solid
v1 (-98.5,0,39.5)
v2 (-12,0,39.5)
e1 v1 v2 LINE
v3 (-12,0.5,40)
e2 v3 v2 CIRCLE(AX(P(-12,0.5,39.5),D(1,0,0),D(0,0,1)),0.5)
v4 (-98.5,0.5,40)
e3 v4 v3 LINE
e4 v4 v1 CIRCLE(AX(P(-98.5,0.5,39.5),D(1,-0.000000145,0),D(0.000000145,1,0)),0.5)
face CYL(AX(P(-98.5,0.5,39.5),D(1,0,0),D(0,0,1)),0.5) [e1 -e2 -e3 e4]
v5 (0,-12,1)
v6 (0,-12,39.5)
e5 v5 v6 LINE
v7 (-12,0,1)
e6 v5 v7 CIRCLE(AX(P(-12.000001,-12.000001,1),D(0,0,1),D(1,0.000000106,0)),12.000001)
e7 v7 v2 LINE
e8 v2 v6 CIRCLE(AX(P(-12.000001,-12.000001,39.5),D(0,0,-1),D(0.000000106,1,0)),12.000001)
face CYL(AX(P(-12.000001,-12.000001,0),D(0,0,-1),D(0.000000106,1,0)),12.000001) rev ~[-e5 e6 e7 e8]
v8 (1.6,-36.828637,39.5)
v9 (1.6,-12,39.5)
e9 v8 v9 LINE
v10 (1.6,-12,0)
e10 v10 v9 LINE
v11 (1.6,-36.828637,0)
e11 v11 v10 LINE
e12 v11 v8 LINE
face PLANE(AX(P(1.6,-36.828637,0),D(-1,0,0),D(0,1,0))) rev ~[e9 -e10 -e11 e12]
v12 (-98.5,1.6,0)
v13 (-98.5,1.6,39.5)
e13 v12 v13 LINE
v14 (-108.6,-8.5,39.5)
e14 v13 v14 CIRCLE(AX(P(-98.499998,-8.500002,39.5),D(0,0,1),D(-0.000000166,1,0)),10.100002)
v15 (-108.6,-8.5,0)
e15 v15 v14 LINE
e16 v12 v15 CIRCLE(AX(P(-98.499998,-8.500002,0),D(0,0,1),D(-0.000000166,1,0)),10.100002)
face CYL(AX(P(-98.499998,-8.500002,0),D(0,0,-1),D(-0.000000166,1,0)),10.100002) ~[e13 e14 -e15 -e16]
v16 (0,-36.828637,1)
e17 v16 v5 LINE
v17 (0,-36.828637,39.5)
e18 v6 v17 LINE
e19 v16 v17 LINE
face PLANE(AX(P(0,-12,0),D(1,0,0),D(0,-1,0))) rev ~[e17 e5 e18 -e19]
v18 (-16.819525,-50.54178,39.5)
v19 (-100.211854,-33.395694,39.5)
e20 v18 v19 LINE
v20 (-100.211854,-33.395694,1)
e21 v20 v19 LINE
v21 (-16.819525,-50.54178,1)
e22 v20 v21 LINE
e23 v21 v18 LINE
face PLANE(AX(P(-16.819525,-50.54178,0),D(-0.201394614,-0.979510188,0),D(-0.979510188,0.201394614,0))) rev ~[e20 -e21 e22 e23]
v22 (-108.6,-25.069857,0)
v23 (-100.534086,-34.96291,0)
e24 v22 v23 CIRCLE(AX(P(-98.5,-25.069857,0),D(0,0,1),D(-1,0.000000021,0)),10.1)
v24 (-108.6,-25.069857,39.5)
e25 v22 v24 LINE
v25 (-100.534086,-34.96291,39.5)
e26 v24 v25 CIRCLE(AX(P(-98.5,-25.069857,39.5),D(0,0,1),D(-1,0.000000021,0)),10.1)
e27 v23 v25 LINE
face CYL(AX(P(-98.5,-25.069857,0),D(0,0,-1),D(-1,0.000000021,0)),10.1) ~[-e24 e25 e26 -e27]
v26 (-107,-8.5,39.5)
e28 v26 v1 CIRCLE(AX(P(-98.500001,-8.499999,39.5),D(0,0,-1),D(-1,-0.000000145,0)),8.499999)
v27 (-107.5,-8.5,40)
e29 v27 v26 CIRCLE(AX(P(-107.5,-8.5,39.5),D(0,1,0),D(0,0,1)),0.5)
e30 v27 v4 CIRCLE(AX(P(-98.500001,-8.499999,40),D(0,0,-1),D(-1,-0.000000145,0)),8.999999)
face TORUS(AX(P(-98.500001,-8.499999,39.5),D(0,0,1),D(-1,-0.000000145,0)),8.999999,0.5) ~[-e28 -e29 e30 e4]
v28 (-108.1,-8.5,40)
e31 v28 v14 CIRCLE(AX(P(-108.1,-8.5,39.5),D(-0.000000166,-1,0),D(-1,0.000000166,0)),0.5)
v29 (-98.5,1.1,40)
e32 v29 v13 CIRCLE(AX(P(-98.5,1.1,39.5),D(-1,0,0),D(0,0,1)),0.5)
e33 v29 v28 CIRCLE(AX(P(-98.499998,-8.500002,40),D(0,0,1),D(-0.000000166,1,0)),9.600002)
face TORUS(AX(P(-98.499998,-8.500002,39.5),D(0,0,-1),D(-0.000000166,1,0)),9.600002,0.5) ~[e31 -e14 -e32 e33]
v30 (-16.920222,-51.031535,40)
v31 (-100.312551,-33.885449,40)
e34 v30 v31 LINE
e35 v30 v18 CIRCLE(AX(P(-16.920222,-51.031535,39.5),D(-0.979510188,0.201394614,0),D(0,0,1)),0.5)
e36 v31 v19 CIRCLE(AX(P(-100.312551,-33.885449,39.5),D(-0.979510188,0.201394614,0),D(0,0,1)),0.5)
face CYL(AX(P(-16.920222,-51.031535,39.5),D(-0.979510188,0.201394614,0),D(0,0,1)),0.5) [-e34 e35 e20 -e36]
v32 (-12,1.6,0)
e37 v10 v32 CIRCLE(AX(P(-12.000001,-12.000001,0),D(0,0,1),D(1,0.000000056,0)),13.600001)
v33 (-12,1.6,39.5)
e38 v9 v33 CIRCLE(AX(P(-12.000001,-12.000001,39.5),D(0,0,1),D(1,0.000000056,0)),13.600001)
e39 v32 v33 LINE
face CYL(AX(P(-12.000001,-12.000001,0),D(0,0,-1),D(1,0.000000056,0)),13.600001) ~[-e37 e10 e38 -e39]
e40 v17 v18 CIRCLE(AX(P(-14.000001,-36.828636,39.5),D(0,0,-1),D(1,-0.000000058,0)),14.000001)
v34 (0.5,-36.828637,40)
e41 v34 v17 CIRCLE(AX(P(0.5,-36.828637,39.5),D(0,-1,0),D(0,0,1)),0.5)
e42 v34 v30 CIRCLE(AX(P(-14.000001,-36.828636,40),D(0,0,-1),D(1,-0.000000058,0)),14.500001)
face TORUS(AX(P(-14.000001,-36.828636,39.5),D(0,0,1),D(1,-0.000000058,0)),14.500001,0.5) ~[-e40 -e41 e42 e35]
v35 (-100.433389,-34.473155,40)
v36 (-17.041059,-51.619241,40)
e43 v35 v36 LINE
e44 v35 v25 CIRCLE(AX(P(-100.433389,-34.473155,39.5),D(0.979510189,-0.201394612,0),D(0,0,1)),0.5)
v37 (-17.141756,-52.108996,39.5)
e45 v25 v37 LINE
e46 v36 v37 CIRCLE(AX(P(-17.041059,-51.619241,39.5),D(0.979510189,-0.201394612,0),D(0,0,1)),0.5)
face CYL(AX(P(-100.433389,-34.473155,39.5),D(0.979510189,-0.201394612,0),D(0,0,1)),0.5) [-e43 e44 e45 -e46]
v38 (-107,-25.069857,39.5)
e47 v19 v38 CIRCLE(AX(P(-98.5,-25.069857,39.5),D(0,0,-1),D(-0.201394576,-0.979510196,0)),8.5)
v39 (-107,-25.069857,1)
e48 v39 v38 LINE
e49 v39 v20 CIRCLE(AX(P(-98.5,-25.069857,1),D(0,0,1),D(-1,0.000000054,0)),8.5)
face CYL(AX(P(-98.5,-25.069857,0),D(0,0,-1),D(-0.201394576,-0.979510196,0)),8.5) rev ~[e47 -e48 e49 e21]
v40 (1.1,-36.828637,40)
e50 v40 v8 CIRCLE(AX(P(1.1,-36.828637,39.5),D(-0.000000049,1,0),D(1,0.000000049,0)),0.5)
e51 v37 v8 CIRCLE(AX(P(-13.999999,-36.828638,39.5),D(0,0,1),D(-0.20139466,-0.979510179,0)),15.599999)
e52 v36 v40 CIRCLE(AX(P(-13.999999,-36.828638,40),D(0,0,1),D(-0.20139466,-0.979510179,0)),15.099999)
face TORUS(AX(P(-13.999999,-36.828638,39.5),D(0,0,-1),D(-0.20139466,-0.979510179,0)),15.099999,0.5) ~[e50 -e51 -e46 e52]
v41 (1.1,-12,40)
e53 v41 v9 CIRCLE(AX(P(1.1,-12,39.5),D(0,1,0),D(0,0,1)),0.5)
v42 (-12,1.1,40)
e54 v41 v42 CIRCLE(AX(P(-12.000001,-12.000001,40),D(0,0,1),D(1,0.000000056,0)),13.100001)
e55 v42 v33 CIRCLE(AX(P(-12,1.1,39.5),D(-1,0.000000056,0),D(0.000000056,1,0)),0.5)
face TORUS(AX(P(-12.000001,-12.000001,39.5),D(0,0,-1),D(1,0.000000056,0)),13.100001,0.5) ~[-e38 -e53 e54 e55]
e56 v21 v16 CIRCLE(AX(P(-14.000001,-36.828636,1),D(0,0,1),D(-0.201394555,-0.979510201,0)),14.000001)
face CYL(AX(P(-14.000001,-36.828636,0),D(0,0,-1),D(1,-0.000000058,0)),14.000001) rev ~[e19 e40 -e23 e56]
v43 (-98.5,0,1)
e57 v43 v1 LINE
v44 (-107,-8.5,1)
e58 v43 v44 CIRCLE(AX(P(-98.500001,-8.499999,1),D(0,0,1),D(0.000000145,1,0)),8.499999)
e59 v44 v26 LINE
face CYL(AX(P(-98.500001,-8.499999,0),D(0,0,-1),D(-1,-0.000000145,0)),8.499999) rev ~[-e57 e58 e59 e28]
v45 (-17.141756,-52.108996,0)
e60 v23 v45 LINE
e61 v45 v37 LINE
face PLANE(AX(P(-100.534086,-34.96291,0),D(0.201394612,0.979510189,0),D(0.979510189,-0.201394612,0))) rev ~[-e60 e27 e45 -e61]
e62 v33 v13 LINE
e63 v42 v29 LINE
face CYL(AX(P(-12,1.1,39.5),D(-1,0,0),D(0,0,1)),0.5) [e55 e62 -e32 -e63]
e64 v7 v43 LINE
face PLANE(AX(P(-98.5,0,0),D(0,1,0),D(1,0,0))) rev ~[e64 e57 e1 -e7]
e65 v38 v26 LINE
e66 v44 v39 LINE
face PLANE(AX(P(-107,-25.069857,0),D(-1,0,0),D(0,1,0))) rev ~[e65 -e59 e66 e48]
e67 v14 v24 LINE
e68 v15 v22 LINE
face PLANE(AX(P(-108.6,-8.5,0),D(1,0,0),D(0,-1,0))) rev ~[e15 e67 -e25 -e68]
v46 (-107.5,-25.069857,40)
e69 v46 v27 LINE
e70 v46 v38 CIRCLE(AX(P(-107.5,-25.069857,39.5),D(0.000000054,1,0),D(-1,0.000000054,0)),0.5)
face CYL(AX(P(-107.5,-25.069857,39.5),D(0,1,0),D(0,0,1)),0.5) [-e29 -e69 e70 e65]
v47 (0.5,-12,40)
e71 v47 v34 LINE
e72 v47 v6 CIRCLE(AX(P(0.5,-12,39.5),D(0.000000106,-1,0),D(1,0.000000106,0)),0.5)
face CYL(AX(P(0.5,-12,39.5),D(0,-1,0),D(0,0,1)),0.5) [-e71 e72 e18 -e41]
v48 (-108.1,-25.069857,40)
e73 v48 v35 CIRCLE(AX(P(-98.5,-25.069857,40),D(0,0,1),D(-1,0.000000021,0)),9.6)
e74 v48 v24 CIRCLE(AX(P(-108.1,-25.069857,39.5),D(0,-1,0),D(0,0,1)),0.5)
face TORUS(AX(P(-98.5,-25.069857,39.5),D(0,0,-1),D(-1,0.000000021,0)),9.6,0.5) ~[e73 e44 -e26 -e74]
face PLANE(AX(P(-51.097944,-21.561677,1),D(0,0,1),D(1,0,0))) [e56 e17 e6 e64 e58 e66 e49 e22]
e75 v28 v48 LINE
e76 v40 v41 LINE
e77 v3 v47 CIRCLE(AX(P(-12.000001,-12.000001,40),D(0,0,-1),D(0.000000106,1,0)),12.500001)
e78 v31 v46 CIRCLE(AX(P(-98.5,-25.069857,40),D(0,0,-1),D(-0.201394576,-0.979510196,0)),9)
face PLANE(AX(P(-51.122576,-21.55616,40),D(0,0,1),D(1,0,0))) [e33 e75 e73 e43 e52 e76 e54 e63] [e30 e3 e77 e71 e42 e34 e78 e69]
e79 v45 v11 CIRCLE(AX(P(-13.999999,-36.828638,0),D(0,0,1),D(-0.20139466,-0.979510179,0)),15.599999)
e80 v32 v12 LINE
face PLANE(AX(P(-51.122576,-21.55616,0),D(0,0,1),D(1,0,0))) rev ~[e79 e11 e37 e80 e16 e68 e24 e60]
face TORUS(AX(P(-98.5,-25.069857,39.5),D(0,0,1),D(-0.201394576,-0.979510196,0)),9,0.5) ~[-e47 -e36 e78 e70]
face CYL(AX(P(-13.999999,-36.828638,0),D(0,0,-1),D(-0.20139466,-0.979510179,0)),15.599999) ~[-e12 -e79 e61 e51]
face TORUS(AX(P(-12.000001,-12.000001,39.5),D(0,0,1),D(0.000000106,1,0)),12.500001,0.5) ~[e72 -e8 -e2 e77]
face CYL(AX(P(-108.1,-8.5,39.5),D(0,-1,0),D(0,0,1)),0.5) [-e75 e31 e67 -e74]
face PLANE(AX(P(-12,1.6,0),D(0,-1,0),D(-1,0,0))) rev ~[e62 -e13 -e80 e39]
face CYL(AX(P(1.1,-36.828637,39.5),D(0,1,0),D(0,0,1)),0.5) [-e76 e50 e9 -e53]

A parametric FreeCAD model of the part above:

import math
import FreeCAD as App
import Part
import Sketcher
Q = App.Units.Quantity


def edges_at(feature, points):
    """Names of the edges that pass closest to the given points."""
    edges = feature.Shape.Edges
    near = lambda p: min(range(len(edges)), key=lambda i: edges[i].distToShape(Part.Vertex(*p))[0])
    return sorted({f"Edge{near(p) + 1}" for p in points})

doc = App.newDocument("Part")
body = doc.addObject("PartDesign::Body", "Body")

# Sketch on XY plane
sketch1 = body.newObject("Sketcher::SketchObject", "Sketch")
sketch1.AttachmentSupport = (doc.getObject("XY_Plane"), [""])
sketch1.MapMode = "FlatFace"
sketch1.addGeometry([
    Part.ArcOfCircle(Part.Circle(App.Vector(-12, -12, 0), App.Vector(0, 0, 1), 12), math.radians(0), math.radians(90)),  # 0
    Part.LineSegment(App.Vector(-12, 0, 0), App.Vector(-98, 0, 0)),  # 1
    Part.ArcOfCircle(Part.Circle(App.Vector(-99, -8, 0), App.Vector(0, 0, 1), 8), math.radians(90), math.radians(180)),  # 2
    Part.LineSegment(App.Vector(-107, -8, 0), App.Vector(-107, -25, 0)),  # 3
    Part.ArcOfCircle(Part.Circle(App.Vector(-99, -25, 0), App.Vector(0, 0, 1), 8), math.radians(180), math.radians(258)),  # 4
    Part.LineSegment(App.Vector(-100, -33, 0), App.Vector(-17, -51, 0)),  # 5
    Part.ArcOfCircle(Part.Circle(App.Vector(-14, -37, 0), App.Vector(0, 0, 1), 14), math.radians(-102), math.radians(0)),  # 6
    Part.LineSegment(App.Vector(0, -37, 0), App.Vector(0, -12, 0)),  # 7
], False)
sketch1.addConstraint([
    Sketcher.Constraint("Tangent", 0, 2, 1, 1),
    Sketcher.Constraint("Tangent", 1, 2, 2, 1),
    Sketcher.Constraint("Tangent", 2, 2, 3, 1),
    Sketcher.Constraint("Tangent", 3, 2, 4, 1),
    Sketcher.Constraint("Tangent", 4, 2, 5, 1),
    Sketcher.Constraint("Tangent", 5, 2, 6, 1),
    Sketcher.Constraint("Tangent", 6, 2, 7, 1),
    Sketcher.Constraint("Tangent", 7, 2, 0, 1),
    Sketcher.Constraint("Horizontal", 1),
    Sketcher.Constraint("Vertical", 3),
    Sketcher.Constraint("Vertical", 7),
    Sketcher.Constraint("Equal", 2, 4),
    Sketcher.Constraint("PointOnObject", 0, 2, -1),
    Sketcher.Constraint("PointOnObject", 6, 2, -2),
    Sketcher.Constraint("Radius", 0, Q("12.000001 mm")),
    Sketcher.Constraint("Radius", 6, Q("14.000001 mm")),
    Sketcher.Constraint("Radius", 2, Q("8.499999 mm")),
    Sketcher.Constraint("DistanceX", 1, 2, 1, 1, Q("86.5 mm")),
    Sketcher.Constraint("DistanceY", 3, 2, 3, 1, Q("16.569857 mm")),
    Sketcher.Constraint("DistanceY", 7, 1, 7, 2, Q("24.828637 mm")),
])
pad1 = body.newObject("PartDesign::Pad", "Pad")
pad1.Profile = sketch1
pad1.Length = 1

# Sketch on XY plane
sketch2 = body.newObject("Sketcher::SketchObject", "Sketch001")
sketch2.AttachmentSupport = (doc.getObject("XY_Plane"), [""])
sketch2.MapMode = "FlatFace"
sketch2.addGeometry([
    Part.LineSegment(App.Vector(2, -37, 0), App.Vector(2, -12, 0)),  # 0
    Part.ArcOfCircle(Part.Circle(App.Vector(-12, -12, 0), App.Vector(0, 0, 1), 14), math.radians(0), math.radians(90)),  # 1
    Part.LineSegment(App.Vector(-12, 2, 0), App.Vector(-98, 2, 0)),  # 2
    Part.ArcOfCircle(Part.Circle(App.Vector(-98, -9, 0), App.Vector(0, 0, 1), 10), math.radians(90), math.radians(180)),  # 3
    Part.LineSegment(App.Vector(-109, -8, 0), App.Vector(-109, -25, 0)),  # 4
    Part.ArcOfCircle(Part.Circle(App.Vector(-99, -25, 0), App.Vector(0, 0, 1), 10), math.radians(180), math.radians(258)),  # 5
    Part.LineSegment(App.Vector(-101, -35, 0), App.Vector(-17, -52, 0)),  # 6
    Part.ArcOfCircle(Part.Circle(App.Vector(-14, -37, 0), App.Vector(0, 0, 1), 16), math.radians(-102), math.radians(0)),  # 7
    Part.ArcOfCircle(Part.Circle(App.Vector(-99, -8, 0), App.Vector(0, 0, 1), 8), math.radians(90), math.radians(180)),  # 8
    Part.LineSegment(App.Vector(-98, 0, 0), App.Vector(-12, 0, 0)),  # 9
    Part.ArcOfCircle(Part.Circle(App.Vector(-12, -12, 0), App.Vector(0, 0, 1), 12), math.radians(0), math.radians(90)),  # 10
    Part.LineSegment(App.Vector(0, -12, 0), App.Vector(0, -37, 0)),  # 11
    Part.ArcOfCircle(Part.Circle(App.Vector(-14, -37, 0), App.Vector(0, 0, 1), 14), math.radians(-102), math.radians(0)),  # 12
    Part.LineSegment(App.Vector(-17, -51, 0), App.Vector(-100, -33, 0)),  # 13
    Part.ArcOfCircle(Part.Circle(App.Vector(-99, -25, 0), App.Vector(0, 0, 1), 8), math.radians(180), math.radians(258)),  # 14
    Part.LineSegment(App.Vector(-107, -25, 0), App.Vector(-107, -8, 0)),  # 15
], False)
sketch2.addConstraint([
    Sketcher.Constraint("Tangent", 0, 2, 1, 1),
    Sketcher.Constraint("Tangent", 1, 2, 2, 1),
    Sketcher.Constraint("Tangent", 2, 2, 3, 1),
    Sketcher.Constraint("Tangent", 3, 2, 4, 1),
    Sketcher.Constraint("Tangent", 4, 2, 5, 1),
    Sketcher.Constraint("Tangent", 5, 2, 6, 1),
    Sketcher.Constraint("Tangent", 6, 2, 7, 1),
    Sketcher.Constraint("Tangent", 7, 2, 0, 1),
    Sketcher.Constraint("Tangent", 8, 1, 9, 1),
    Sketcher.Constraint("Tangent", 9, 2, 10, 2),
    Sketcher.Constraint("Tangent", 10, 1, 11, 1),
    Sketcher.Constraint("Tangent", 11, 2, 12, 2),
    Sketcher.Constraint("Tangent", 12, 1, 13, 1),
    Sketcher.Constraint("Tangent", 13, 2, 14, 2),
    Sketcher.Constraint("Tangent", 14, 1, 15, 1),
    Sketcher.Constraint("Tangent", 15, 2, 8, 2),
    Sketcher.Constraint("Vertical", 0),
    Sketcher.Constraint("Horizontal", 2),
    Sketcher.Constraint("Vertical", 4),
    Sketcher.Constraint("Horizontal", 9),
    Sketcher.Constraint("Vertical", 11),
    Sketcher.Constraint("Vertical", 15),
    Sketcher.Constraint("Coincident", 8, 3, 3, 3),
    Sketcher.Constraint("Coincident", 10, 3, 1, 3),
    Sketcher.Constraint("Coincident", 12, 3, 7, 3),
    Sketcher.Constraint("Coincident", 14, 3, 5, 3),
    Sketcher.Constraint("Equal", 3, 5),
    Sketcher.Constraint("PointOnObject", 8, 1, -1),
    Sketcher.Constraint("PointOnObject", 10, 1, -2),
    Sketcher.Constraint("Radius", 10, Q("12.000001 mm")),
    Sketcher.Constraint("Radius", 12, Q("14.000001 mm")),
    Sketcher.Constraint("Radius", 1, Q("13.600001 mm")),
    Sketcher.Constraint("Radius", 3, Q("10.100002 mm")),
    Sketcher.Constraint("DistanceX", 2, 2, 2, 1, Q("86.5 mm")),
    Sketcher.Constraint("DistanceY", 0, 1, 0, 2, Q("24.828637 mm")),
    Sketcher.Constraint("DistanceY", 4, 2, 4, 1, Q("16.569857 mm")),
])
pad2 = body.newObject("PartDesign::Pad", "Pad001")
pad2.Profile = sketch2
pad2.Length = 40
doc.recompute()

fillet = body.newObject("PartDesign::Fillet", "Fillet")
fillet.Base = (pad2, edges_at(pad2, [(-58.838, -43.536, 40), (-58.516, -41.969, 40)]))
fillet.Radius = 0.5

doc.recompute()
